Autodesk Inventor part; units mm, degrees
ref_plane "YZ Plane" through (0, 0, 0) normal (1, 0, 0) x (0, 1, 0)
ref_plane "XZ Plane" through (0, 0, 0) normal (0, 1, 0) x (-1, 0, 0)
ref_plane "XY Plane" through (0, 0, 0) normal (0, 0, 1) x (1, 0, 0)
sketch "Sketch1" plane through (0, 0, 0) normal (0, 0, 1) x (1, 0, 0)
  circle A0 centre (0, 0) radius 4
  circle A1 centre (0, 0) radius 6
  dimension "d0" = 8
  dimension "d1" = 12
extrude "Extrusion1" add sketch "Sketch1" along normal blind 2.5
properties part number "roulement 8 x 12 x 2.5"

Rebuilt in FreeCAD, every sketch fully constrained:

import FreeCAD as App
import Part
import Sketcher

V = App.Vector

doc = App.newDocument("Part")
params = doc.addObject("Spreadsheet::Sheet", "Params")
for row, (alias, value) in enumerate([
    ("sketch1_diameter", "12 mm"),
    ("sketch1_diameter2", "8 mm"),
    ("pad1_length", "2.5 mm"),
], start=1):
    params.set(f"A{row}", alias)
    params.set(f"B{row}", "=" + value)
    params.setAlias(f"B{row}", alias)

body = doc.addObject("PartDesign::Body", "Body")

# Sketch on XY plane
sketch1 = body.newObject("Sketcher::SketchObject", "Sketch")
sketch1.AttachmentSupport = (doc.getObject("XY_Plane"), [""])
sketch1.MapMode = "FlatFace"
sketch1.addGeometry([
    Part.Circle(V(0, 0, 0), V(0, 0, 1), 6),
    Part.Circle(V(0, 0, 0), V(0, 0, 1), 4),
], False)
sketch1.addConstraint([
    Sketcher.Constraint("Coincident", 0, 3, -1, 1),
    Sketcher.Constraint("Coincident", 1, 3, -1, 1),
    Sketcher.Constraint("Diameter", 0, 12.0),
    Sketcher.Constraint("Diameter", 1, 8.0),
])
sketch1.setExpression("Constraints[2]", "Params.sketch1_diameter")
sketch1.setExpression("Constraints[3]", "Params.sketch1_diameter2")
pad1 = body.newObject("PartDesign::Pad", "Pad")
pad1.Profile = sketch1
pad1.setExpression("Length", "Params.pad1_length")

doc.recompute()
